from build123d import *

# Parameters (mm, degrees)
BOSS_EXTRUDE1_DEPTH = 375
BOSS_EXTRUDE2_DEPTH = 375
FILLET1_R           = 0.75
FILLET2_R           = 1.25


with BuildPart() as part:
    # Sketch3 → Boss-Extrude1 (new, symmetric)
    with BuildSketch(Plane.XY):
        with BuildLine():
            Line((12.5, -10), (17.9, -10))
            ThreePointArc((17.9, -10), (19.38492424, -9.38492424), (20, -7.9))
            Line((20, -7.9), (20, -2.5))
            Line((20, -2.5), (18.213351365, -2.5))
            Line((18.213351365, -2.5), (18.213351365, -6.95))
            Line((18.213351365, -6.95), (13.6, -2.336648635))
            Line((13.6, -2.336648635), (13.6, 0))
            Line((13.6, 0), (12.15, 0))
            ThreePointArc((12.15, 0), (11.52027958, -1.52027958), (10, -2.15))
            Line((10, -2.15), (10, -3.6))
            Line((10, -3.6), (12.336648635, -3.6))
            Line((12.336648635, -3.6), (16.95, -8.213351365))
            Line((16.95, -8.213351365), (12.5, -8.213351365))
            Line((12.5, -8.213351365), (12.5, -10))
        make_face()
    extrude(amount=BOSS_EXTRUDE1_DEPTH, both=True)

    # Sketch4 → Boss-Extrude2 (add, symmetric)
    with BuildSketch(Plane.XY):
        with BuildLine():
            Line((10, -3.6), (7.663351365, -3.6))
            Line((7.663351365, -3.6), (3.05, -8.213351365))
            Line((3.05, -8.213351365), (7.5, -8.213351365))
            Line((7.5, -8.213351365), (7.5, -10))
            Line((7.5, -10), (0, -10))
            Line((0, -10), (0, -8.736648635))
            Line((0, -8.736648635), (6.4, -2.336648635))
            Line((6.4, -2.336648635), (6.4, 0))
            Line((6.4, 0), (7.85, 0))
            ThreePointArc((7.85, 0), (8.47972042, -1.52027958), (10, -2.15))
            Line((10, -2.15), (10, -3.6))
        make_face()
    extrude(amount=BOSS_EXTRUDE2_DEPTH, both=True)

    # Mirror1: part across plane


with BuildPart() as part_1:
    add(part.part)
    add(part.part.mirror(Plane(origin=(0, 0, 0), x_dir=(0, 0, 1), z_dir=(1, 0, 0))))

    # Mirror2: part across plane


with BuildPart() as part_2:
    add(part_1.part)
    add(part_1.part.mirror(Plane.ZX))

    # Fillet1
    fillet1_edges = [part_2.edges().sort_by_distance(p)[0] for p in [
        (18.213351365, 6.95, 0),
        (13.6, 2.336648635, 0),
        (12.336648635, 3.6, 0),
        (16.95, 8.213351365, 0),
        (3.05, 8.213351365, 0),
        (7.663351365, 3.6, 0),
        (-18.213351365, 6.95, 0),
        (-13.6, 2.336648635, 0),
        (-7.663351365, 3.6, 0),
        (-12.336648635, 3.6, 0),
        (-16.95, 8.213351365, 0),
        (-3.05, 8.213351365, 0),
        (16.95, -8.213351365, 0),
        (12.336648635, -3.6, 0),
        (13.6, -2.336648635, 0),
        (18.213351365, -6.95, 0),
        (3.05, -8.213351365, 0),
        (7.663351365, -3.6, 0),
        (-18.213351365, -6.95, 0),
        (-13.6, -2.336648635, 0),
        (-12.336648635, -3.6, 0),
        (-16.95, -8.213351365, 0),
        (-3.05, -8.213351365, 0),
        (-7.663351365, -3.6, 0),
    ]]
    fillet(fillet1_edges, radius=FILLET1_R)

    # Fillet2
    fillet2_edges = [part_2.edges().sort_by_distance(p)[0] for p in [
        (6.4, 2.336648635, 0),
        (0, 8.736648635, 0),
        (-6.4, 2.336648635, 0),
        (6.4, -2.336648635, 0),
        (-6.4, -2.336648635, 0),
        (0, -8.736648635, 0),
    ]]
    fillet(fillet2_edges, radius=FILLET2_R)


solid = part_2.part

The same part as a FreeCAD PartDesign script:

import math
import FreeCAD as App
import Part
import Sketcher
Q = App.Units.Quantity


def edges_at(feature, points):
    """Names of the edges that pass closest to the given points."""
    edges = feature.Shape.Edges
    near = lambda p: min(range(len(edges)), key=lambda i: edges[i].distToShape(Part.Vertex(*p))[0])
    return sorted({f"Edge{near(p) + 1}" for p in points})

doc = App.newDocument("Part")
params = doc.addObject("Spreadsheet::Sheet", "Params")
for row, (alias, value) in enumerate([
    ("sketch1_radius", "2.1 mm"),
    ("sketch1_radius2", "2.15 mm"),
    ("sketch1_width", "5.4 mm"),
    ("sketch1_width2", "1.45 mm"),
    ("sketch1_width3", "4.45 mm"),
    ("pad1_length", "750 mm"),
    ("sketch2_radius", "2.15 mm"),
    ("sketch2_width", "7.5 mm"),
    ("sketch2_width2", "1.45 mm"),
    ("sketch2_width3", "4.45 mm"),
    ("pad2_length", "750 mm"),
    ("fillet_radius", "0.75 mm"),
    ("fillet2_radius", "1.25 mm"),
], start=1):
    params.set(f"A{row}", alias)
    params.set(f"B{row}", "=" + value)
    params.setAlias(f"B{row}", alias)

body = doc.addObject("PartDesign::Body", "Body")

# Sketch on XY plane
sketch1 = doc.addObject("Sketcher::SketchObject", "Sketch")
body.addObject(sketch1)
sketch1.AttachmentSupport = (doc.XY_Plane, [""])
sketch1.MapMode = "FlatFace"
sketch1.addGeometry(Part.LineSegment(App.Vector(12.5, -10, 0), App.Vector(17.9, -10, 0)), False)
sketch1.addGeometry(Part.ArcOfCircle(Part.Circle(App.Vector(17.9, -7.9, 0), App.Vector(0, 0, 1), 2.1), math.radians(-90), math.radians(0)), False)
sketch1.addGeometry(Part.LineSegment(App.Vector(20, -7.9, 0), App.Vector(20, -2.5, 0)), False)
sketch1.addGeometry(Part.LineSegment(App.Vector(20, -2.5, 0), App.Vector(18.213351, -2.5, 0)), False)
sketch1.addGeometry(Part.LineSegment(App.Vector(18.213351, -2.5, 0), App.Vector(18.213351, -6.95, 0)), False)
sketch1.addGeometry(Part.LineSegment(App.Vector(18.213351, -6.95, 0), App.Vector(13.6, -2.336649, 0)), False)
sketch1.addGeometry(Part.LineSegment(App.Vector(13.6, -2.336649, 0), App.Vector(13.6, 0, 0)), False)
sketch1.addGeometry(Part.LineSegment(App.Vector(13.6, 0, 0), App.Vector(12.15, 0, 0)), False)
sketch1.addGeometry(Part.ArcOfCircle(Part.Circle(App.Vector(10, 0, 0), App.Vector(0, 0, 1), 2.15), math.radians(-90), math.radians(0)), False)
sketch1.addGeometry(Part.LineSegment(App.Vector(10, -2.15, 0), App.Vector(10, -3.6, 0)), False)
sketch1.addGeometry(Part.LineSegment(App.Vector(10, -3.6, 0), App.Vector(12.336649, -3.6, 0)), False)
sketch1.addGeometry(Part.LineSegment(App.Vector(12.336649, -3.6, 0), App.Vector(16.95, -8.213351, 0)), False)
sketch1.addGeometry(Part.LineSegment(App.Vector(16.95, -8.213351, 0), App.Vector(12.5, -8.213351, 0)), False)
sketch1.addGeometry(Part.LineSegment(App.Vector(12.5, -8.213351, 0), App.Vector(12.5, -10, 0)), False)
sketch1.addConstraint(Sketcher.Constraint("Tangent", 0, 2, 1, 1))
sketch1.addConstraint(Sketcher.Constraint("Tangent", 1, 2, 2, 1))
sketch1.addConstraint(Sketcher.Constraint("Coincident", 2, 2, 3, 1))
sketch1.addConstraint(Sketcher.Constraint("Coincident", 3, 2, 4, 1))
sketch1.addConstraint(Sketcher.Constraint("Coincident", 4, 2, 5, 1))
sketch1.addConstraint(Sketcher.Constraint("Coincident", 5, 2, 6, 1))
sketch1.addConstraint(Sketcher.Constraint("Coincident", 6, 2, 7, 1))
sketch1.addConstraint(Sketcher.Constraint("Coincident", 7, 2, 8, 2))
sketch1.addConstraint(Sketcher.Constraint("Coincident", 8, 1, 9, 1))
sketch1.addConstraint(Sketcher.Constraint("Coincident", 9, 2, 10, 1))
sketch1.addConstraint(Sketcher.Constraint("Coincident", 10, 2, 11, 1))
sketch1.addConstraint(Sketcher.Constraint("Coincident", 11, 2, 12, 1))
sketch1.addConstraint(Sketcher.Constraint("Coincident", 12, 2, 13, 1))
sketch1.addConstraint(Sketcher.Constraint("Coincident", 13, 2, 0, 1))
sketch1.addConstraint(Sketcher.Constraint("Horizontal", 0))
sketch1.addConstraint(Sketcher.Constraint("Vertical", 2))
sketch1.addConstraint(Sketcher.Constraint("Horizontal", 3))
sketch1.addConstraint(Sketcher.Constraint("Vertical", 4))
sketch1.addConstraint(Sketcher.Constraint("Vertical", 6))
sketch1.addConstraint(Sketcher.Constraint("Horizontal", 7))
sketch1.addConstraint(Sketcher.Constraint("Vertical", 9))
sketch1.addConstraint(Sketcher.Constraint("Horizontal", 10))
sketch1.addConstraint(Sketcher.Constraint("Horizontal", 12))
sketch1.addConstraint(Sketcher.Constraint("Vertical", 13))
sketch1.addConstraint(Sketcher.Constraint("PointOnObject", 8, 3, -1))
sketch1.addConstraint(Sketcher.Constraint("PointOnObject", 6, 2, -1))
sketch1.addConstraint(Sketcher.Constraint("Parallel", 5, 11))
sketch1.addConstraint(Sketcher.Constraint("Equal", 0, 2))
sketch1.addConstraint(Sketcher.Constraint("Equal", 12, 4))
sketch1.addConstraint(Sketcher.Constraint("Equal", 10, 6))
sketch1.addConstraint(Sketcher.Constraint("Equal", 7, 9))
sketch1.addConstraint(Sketcher.Constraint("Equal", 3, 13))
sketch1.addConstraint(Sketcher.Constraint("Equal", 5, 11))
sketch1.addConstraint(Sketcher.Constraint("Radius", 1, Q("2.1 mm")))
sketch1.addConstraint(Sketcher.Constraint("Angle", 5, Q("135 deg")))
sketch1.addConstraint(Sketcher.Constraint("Radius", 8, Q("2.15 mm")))
sketch1.addConstraint(Sketcher.Constraint("DistanceX", 0, 1, 0, 2, Q("5.4 mm")))
sketch1.addConstraint(Sketcher.Constraint("DistanceX", -1, 1, 8, 3, Q("10 mm")))
sketch1.addConstraint(Sketcher.Constraint("DistanceY", 0, 2, -1, 1, Q("10 mm")))
sketch1.addConstraint(Sketcher.Constraint("DistanceX", 7, 2, 7, 1, Q("1.45 mm")))
sketch1.addConstraint(Sketcher.Constraint("DistanceX", 12, 2, 12, 1, Q("4.45 mm")))
sketch1.addConstraint(Sketcher.Constraint("DistanceX", 3, 2, 3, 1, Q("1.786649 mm")))
sketch1.setExpression("Constraints[33]", "Params.sketch1_radius")
sketch1.setExpression("Constraints[35]", "Params.sketch1_radius2")
sketch1.setExpression("Constraints[36]", "Params.sketch1_width")
sketch1.setExpression("Constraints[39]", "Params.sketch1_width2")
sketch1.setExpression("Constraints[40]", "Params.sketch1_width3")
pad1 = doc.addObject("PartDesign::Pad", "Pad")
body.addObject(pad1)
pad1.Profile = sketch1
pad1.setExpression("Length", "Params.pad1_length")
pad1.Midplane = True

# Sketch on XY plane
sketch2 = doc.addObject("Sketcher::SketchObject", "Sketch001")
body.addObject(sketch2)
sketch2.AttachmentSupport = (doc.XY_Plane, [""])
sketch2.MapMode = "FlatFace"
sketch2.addGeometry(Part.LineSegment(App.Vector(7.663351, -3.6, 0), App.Vector(10, -3.6, 0)), False)
sketch2.addGeometry(Part.LineSegment(App.Vector(10, -3.6, 0), App.Vector(10, -2.15, 0)), False)
sketch2.addGeometry(Part.ArcOfCircle(Part.Circle(App.Vector(10, 0, 0), App.Vector(0, 0, 1), 2.15), math.radians(180), math.radians(270)), False)
sketch2.addGeometry(Part.LineSegment(App.Vector(7.85, 0, 0), App.Vector(6.4, 0, 0)), False)
sketch2.addGeometry(Part.LineSegment(App.Vector(6.4, 0, 0), App.Vector(6.4, -2.336649, 0)), False)
sketch2.addGeometry(Part.LineSegment(App.Vector(6.4, -2.336649, 0), App.Vector(0, -8.736649, 0)), False)
sketch2.addGeometry(Part.LineSegment(App.Vector(0, -8.736649, 0), App.Vector(0, -10, 0)), False)
sketch2.addGeometry(Part.LineSegment(App.Vector(0, -10, 0), App.Vector(7.5, -10, 0)), False)
sketch2.addGeometry(Part.LineSegment(App.Vector(7.5, -10, 0), App.Vector(7.5, -8.213351, 0)), False)
sketch2.addGeometry(Part.LineSegment(App.Vector(7.5, -8.213351, 0), App.Vector(3.05, -8.213351, 0)), False)
sketch2.addGeometry(Part.LineSegment(App.Vector(3.05, -8.213351, 0), App.Vector(7.663351, -3.6, 0)), False)
sketch2.addConstraint(Sketcher.Constraint("Coincident", 0, 2, 1, 1))
sketch2.addConstraint(Sketcher.Constraint("Coincident", 1, 2, 2, 2))
sketch2.addConstraint(Sketcher.Constraint("Coincident", 2, 1, 3, 1))
sketch2.addConstraint(Sketcher.Constraint("Coincident", 3, 2, 4, 1))
sketch2.addConstraint(Sketcher.Constraint("Coincident", 4, 2, 5, 1))
sketch2.addConstraint(Sketcher.Constraint("Coincident", 5, 2, 6, 1))
sketch2.addConstraint(Sketcher.Constraint("Coincident", 6, 2, 7, 1))
sketch2.addConstraint(Sketcher.Constraint("Coincident", 7, 2, 8, 1))
sketch2.addConstraint(Sketcher.Constraint("Coincident", 8, 2, 9, 1))
sketch2.addConstraint(Sketcher.Constraint("Coincident", 9, 2, 10, 1))
sketch2.addConstraint(Sketcher.Constraint("Coincident", 10, 2, 0, 1))
sketch2.addConstraint(Sketcher.Constraint("Horizontal", 0))
sketch2.addConstraint(Sketcher.Constraint("Vertical", 1))
sketch2.addConstraint(Sketcher.Constraint("Horizontal", 3))
sketch2.addConstraint(Sketcher.Constraint("Vertical", 4))
sketch2.addConstraint(Sketcher.Constraint("Vertical", 6))
sketch2.addConstraint(Sketcher.Constraint("Horizontal", 7))
sketch2.addConstraint(Sketcher.Constraint("Vertical", 8))
sketch2.addConstraint(Sketcher.Constraint("Horizontal", 9))
sketch2.addConstraint(Sketcher.Constraint("PointOnObject", 2, 3, -1))
sketch2.addConstraint(Sketcher.Constraint("PointOnObject", 2, 1, -1))
sketch2.addConstraint(Sketcher.Constraint("PointOnObject", 5, 2, -2))
sketch2.addConstraint(Sketcher.Constraint("Parallel", 5, 10))
sketch2.addConstraint(Sketcher.Constraint("Vertical", 2, 3, 0, 2))
sketch2.addConstraint(Sketcher.Constraint("Equal", 3, 1))
sketch2.addConstraint(Sketcher.Constraint("Equal", 0, 4))
sketch2.addConstraint(Sketcher.Constraint("Angle", 5, Q("-135 deg")))
sketch2.addConstraint(Sketcher.Constraint("Radius", 2, Q("2.15 mm")))
sketch2.addConstraint(Sketcher.Constraint("DistanceX", 7, 1, 7, 2, Q("7.5 mm")))
sketch2.addConstraint(Sketcher.Constraint("DistanceX", -1, 1, 2, 3, Q("10 mm")))
sketch2.addConstraint(Sketcher.Constraint("DistanceY", 6, 2, -1, 1, Q("10 mm")))
sketch2.addConstraint(Sketcher.Constraint("DistanceX", 3, 2, 3, 1, Q("1.45 mm")))
sketch2.addConstraint(Sketcher.Constraint("DistanceX", 9, 2, 9, 1, Q("4.45 mm")))
sketch2.addConstraint(Sketcher.Constraint("DistanceX", 0, 1, 0, 2, Q("2.336649 mm")))
sketch2.setExpression("Constraints[27]", "Params.sketch2_radius")
sketch2.setExpression("Constraints[28]", "Params.sketch2_width")
sketch2.setExpression("Constraints[31]", "Params.sketch2_width2")
sketch2.setExpression("Constraints[32]", "Params.sketch2_width3")
pad2 = doc.addObject("PartDesign::Pad", "Pad001")
body.addObject(pad2)
pad2.Profile = sketch2
pad2.setExpression("Length", "Params.pad2_length")
pad2.Midplane = True
body2 = doc.addObject("PartDesign::Body", "Body001")
doc.recompute()

body2.BaseFeature = body
doc.recompute()

mirroring = doc.addObject("Part::Mirroring", "Mirroring")
mirroring.Source = body
mirroring.Base = App.Vector(0, 0, 0)
mirroring.Normal = App.Vector(1, 0, 0)
body3 = doc.addObject("PartDesign::Body", "Body002")
body3.BaseFeature = mirroring
boolean = doc.addObject("PartDesign::Boolean", "Boolean")
body2.addObject(boolean)
boolean.Type = "Fuse"
boolean.addObjects([body3])
doc.recompute()
body4 = doc.addObject("PartDesign::Body", "Body003")
doc.recompute()

body4.BaseFeature = body2
doc.recompute()

mirroring2 = doc.addObject("Part::Mirroring", "Mirroring001")
mirroring2.Source = body2
mirroring2.Base = App.Vector(0, 0, 0)
mirroring2.Normal = App.Vector(0, 1, 0)
body5 = doc.addObject("PartDesign::Body", "Body004")
body5.BaseFeature = mirroring2
boolean2 = doc.addObject("PartDesign::Boolean", "Boolean001")
body4.addObject(boolean2)
boolean2.Type = "Fuse"
boolean2.addObjects([body5])
doc.recompute()

fillet = doc.addObject("PartDesign::Fillet", "Fillet")
body4.addObject(fillet)
fillet.Base = (boolean2, edges_at(boolean2, [
    (18.213, 6.95, 0),
    (13.6, 2.337, 0),
    (12.337, 3.6, 0),
    (16.95, 8.213, 0),
    (3.05, 8.213, 0),
    (7.663, 3.6, 0),
    (-18.213, 6.95, 0),
    (-13.6, 2.337, 0),
    (-7.663, 3.6, 0),
    (-12.337, 3.6, 0),
    (-16.95, 8.213, 0),
    (-3.05, 8.213, 0),
    (16.95, -8.213, 0),
    (12.337, -3.6, 0),
    (13.6, -2.337, 0),
    (18.213, -6.95, 0),
    (3.05, -8.213, 0),
    (7.663, -3.6, 0),
    (-18.213, -6.95, 0),
    (-13.6, -2.337, 0),
    (-12.337, -3.6, 0),
    (-16.95, -8.213, 0),
    (-3.05, -8.213, 0),
    (-7.663, -3.6, 0),
]))
fillet.setExpression("Radius", "Params.fillet_radius")
doc.recompute()

fillet2 = doc.addObject("PartDesign::Fillet", "Fillet001")
body4.addObject(fillet2)
fillet2.Base = (fillet, edges_at(fillet, [
    (6.4, 2.337, 0),
    (0, 8.737, 0),
    (-6.4, 2.337, 0),
    (6.4, -2.337, 0),
    (-6.4, -2.337, 0),
    (0, -8.737, 0),
]))
fillet2.setExpression("Radius", "Params.fillet2_radius")
mirroring.Visibility = False
mirroring2.Visibility = False

doc.recompute()
